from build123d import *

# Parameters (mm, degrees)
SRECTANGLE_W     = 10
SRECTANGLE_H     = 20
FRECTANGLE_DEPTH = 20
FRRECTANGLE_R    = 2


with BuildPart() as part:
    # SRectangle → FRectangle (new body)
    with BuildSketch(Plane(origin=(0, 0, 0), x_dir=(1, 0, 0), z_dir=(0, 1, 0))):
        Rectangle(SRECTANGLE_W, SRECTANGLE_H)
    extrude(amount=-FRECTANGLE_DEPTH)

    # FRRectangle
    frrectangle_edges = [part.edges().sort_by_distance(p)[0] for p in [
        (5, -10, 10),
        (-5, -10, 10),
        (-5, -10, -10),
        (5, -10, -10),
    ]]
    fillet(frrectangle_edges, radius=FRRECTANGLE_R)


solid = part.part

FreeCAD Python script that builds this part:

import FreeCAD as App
import Part
import Sketcher

V = App.Vector


def edges_at(feature, points):
    """Names of the edges that pass closest to the given points."""
    edges = feature.Shape.Edges
    near = lambda p: min(range(len(edges)), key=lambda i: edges[i].distToShape(Part.Vertex(*p))[0])
    return sorted({f"Edge{near(p) + 1}" for p in points})


def add_polygon(sketch, points):
    """Adds a closed chain of lines whose ends are joined by coincident constraints."""
    first, n = sketch.GeometryCount, len(points)
    for a, b in zip(points, points[1:] + points[:1]):
        sketch.addGeometry(Part.LineSegment(App.Vector(*a, 0), App.Vector(*b, 0)), False)
    for i in range(n):
        sketch.addConstraint(Sketcher.Constraint("Coincident", first + i, 2, first + (i + 1) % n, 1))

doc = App.newDocument("Part")
params = doc.addObject("Spreadsheet::Sheet", "Params")
for row, (alias, value) in enumerate([
    ("sketch1_width", "10 mm"),
    ("sketch1_height", "20 mm"),
    ("pad1_length", "20 mm"),
    ("fillet_radius", "2 mm"),
], start=1):
    params.set(f"A{row}", alias)
    params.set(f"B{row}", "=" + value)
    params.setAlias(f"B{row}", alias)

body = doc.addObject("PartDesign::Body", "Body")

# Sketch on XZ plane
sketch1 = doc.addObject("Sketcher::SketchObject", "Sketch")
body.addObject(sketch1)
sketch1.AttachmentSupport = (doc.XZ_Plane, [""])
sketch1.MapMode = "FlatFace"
add_polygon(sketch1, [(-5, -10), (-5, 10), (5, 10), (5, -10)])  # lines 0-3
sketch1.addConstraint([
    Sketcher.Constraint("Vertical", 0),
    Sketcher.Constraint("Horizontal", 1),
    Sketcher.Constraint("Vertical", 2),
    Sketcher.Constraint("Horizontal", 3),
    Sketcher.Constraint("Symmetric", 0, 2, 2, 2, -1, 1),
    Sketcher.Constraint("DistanceX", 1, 1, 1, 2, 10.0),
    Sketcher.Constraint("DistanceY", 0, 1, 0, 2, 20.0),
])
sketch1.setExpression("Constraints[9]", "Params.sketch1_width")
sketch1.setExpression("Constraints[10]", "Params.sketch1_height")
pad1 = doc.addObject("PartDesign::Pad", "Pad")
body.addObject(pad1)
pad1.Profile = sketch1
pad1.setExpression("Length", "Params.pad1_length")
doc.recompute()

fillet = doc.addObject("PartDesign::Fillet", "Fillet")
body.addObject(fillet)
fillet.Base = (pad1, edges_at(pad1, [
    (5, -10, 10),
    (-5, -10, 10),
    (-5, -10, -10),
    (5, -10, -10),
]))
fillet.setExpression("Radius", "Params.fillet_radius")

doc.recompute()
